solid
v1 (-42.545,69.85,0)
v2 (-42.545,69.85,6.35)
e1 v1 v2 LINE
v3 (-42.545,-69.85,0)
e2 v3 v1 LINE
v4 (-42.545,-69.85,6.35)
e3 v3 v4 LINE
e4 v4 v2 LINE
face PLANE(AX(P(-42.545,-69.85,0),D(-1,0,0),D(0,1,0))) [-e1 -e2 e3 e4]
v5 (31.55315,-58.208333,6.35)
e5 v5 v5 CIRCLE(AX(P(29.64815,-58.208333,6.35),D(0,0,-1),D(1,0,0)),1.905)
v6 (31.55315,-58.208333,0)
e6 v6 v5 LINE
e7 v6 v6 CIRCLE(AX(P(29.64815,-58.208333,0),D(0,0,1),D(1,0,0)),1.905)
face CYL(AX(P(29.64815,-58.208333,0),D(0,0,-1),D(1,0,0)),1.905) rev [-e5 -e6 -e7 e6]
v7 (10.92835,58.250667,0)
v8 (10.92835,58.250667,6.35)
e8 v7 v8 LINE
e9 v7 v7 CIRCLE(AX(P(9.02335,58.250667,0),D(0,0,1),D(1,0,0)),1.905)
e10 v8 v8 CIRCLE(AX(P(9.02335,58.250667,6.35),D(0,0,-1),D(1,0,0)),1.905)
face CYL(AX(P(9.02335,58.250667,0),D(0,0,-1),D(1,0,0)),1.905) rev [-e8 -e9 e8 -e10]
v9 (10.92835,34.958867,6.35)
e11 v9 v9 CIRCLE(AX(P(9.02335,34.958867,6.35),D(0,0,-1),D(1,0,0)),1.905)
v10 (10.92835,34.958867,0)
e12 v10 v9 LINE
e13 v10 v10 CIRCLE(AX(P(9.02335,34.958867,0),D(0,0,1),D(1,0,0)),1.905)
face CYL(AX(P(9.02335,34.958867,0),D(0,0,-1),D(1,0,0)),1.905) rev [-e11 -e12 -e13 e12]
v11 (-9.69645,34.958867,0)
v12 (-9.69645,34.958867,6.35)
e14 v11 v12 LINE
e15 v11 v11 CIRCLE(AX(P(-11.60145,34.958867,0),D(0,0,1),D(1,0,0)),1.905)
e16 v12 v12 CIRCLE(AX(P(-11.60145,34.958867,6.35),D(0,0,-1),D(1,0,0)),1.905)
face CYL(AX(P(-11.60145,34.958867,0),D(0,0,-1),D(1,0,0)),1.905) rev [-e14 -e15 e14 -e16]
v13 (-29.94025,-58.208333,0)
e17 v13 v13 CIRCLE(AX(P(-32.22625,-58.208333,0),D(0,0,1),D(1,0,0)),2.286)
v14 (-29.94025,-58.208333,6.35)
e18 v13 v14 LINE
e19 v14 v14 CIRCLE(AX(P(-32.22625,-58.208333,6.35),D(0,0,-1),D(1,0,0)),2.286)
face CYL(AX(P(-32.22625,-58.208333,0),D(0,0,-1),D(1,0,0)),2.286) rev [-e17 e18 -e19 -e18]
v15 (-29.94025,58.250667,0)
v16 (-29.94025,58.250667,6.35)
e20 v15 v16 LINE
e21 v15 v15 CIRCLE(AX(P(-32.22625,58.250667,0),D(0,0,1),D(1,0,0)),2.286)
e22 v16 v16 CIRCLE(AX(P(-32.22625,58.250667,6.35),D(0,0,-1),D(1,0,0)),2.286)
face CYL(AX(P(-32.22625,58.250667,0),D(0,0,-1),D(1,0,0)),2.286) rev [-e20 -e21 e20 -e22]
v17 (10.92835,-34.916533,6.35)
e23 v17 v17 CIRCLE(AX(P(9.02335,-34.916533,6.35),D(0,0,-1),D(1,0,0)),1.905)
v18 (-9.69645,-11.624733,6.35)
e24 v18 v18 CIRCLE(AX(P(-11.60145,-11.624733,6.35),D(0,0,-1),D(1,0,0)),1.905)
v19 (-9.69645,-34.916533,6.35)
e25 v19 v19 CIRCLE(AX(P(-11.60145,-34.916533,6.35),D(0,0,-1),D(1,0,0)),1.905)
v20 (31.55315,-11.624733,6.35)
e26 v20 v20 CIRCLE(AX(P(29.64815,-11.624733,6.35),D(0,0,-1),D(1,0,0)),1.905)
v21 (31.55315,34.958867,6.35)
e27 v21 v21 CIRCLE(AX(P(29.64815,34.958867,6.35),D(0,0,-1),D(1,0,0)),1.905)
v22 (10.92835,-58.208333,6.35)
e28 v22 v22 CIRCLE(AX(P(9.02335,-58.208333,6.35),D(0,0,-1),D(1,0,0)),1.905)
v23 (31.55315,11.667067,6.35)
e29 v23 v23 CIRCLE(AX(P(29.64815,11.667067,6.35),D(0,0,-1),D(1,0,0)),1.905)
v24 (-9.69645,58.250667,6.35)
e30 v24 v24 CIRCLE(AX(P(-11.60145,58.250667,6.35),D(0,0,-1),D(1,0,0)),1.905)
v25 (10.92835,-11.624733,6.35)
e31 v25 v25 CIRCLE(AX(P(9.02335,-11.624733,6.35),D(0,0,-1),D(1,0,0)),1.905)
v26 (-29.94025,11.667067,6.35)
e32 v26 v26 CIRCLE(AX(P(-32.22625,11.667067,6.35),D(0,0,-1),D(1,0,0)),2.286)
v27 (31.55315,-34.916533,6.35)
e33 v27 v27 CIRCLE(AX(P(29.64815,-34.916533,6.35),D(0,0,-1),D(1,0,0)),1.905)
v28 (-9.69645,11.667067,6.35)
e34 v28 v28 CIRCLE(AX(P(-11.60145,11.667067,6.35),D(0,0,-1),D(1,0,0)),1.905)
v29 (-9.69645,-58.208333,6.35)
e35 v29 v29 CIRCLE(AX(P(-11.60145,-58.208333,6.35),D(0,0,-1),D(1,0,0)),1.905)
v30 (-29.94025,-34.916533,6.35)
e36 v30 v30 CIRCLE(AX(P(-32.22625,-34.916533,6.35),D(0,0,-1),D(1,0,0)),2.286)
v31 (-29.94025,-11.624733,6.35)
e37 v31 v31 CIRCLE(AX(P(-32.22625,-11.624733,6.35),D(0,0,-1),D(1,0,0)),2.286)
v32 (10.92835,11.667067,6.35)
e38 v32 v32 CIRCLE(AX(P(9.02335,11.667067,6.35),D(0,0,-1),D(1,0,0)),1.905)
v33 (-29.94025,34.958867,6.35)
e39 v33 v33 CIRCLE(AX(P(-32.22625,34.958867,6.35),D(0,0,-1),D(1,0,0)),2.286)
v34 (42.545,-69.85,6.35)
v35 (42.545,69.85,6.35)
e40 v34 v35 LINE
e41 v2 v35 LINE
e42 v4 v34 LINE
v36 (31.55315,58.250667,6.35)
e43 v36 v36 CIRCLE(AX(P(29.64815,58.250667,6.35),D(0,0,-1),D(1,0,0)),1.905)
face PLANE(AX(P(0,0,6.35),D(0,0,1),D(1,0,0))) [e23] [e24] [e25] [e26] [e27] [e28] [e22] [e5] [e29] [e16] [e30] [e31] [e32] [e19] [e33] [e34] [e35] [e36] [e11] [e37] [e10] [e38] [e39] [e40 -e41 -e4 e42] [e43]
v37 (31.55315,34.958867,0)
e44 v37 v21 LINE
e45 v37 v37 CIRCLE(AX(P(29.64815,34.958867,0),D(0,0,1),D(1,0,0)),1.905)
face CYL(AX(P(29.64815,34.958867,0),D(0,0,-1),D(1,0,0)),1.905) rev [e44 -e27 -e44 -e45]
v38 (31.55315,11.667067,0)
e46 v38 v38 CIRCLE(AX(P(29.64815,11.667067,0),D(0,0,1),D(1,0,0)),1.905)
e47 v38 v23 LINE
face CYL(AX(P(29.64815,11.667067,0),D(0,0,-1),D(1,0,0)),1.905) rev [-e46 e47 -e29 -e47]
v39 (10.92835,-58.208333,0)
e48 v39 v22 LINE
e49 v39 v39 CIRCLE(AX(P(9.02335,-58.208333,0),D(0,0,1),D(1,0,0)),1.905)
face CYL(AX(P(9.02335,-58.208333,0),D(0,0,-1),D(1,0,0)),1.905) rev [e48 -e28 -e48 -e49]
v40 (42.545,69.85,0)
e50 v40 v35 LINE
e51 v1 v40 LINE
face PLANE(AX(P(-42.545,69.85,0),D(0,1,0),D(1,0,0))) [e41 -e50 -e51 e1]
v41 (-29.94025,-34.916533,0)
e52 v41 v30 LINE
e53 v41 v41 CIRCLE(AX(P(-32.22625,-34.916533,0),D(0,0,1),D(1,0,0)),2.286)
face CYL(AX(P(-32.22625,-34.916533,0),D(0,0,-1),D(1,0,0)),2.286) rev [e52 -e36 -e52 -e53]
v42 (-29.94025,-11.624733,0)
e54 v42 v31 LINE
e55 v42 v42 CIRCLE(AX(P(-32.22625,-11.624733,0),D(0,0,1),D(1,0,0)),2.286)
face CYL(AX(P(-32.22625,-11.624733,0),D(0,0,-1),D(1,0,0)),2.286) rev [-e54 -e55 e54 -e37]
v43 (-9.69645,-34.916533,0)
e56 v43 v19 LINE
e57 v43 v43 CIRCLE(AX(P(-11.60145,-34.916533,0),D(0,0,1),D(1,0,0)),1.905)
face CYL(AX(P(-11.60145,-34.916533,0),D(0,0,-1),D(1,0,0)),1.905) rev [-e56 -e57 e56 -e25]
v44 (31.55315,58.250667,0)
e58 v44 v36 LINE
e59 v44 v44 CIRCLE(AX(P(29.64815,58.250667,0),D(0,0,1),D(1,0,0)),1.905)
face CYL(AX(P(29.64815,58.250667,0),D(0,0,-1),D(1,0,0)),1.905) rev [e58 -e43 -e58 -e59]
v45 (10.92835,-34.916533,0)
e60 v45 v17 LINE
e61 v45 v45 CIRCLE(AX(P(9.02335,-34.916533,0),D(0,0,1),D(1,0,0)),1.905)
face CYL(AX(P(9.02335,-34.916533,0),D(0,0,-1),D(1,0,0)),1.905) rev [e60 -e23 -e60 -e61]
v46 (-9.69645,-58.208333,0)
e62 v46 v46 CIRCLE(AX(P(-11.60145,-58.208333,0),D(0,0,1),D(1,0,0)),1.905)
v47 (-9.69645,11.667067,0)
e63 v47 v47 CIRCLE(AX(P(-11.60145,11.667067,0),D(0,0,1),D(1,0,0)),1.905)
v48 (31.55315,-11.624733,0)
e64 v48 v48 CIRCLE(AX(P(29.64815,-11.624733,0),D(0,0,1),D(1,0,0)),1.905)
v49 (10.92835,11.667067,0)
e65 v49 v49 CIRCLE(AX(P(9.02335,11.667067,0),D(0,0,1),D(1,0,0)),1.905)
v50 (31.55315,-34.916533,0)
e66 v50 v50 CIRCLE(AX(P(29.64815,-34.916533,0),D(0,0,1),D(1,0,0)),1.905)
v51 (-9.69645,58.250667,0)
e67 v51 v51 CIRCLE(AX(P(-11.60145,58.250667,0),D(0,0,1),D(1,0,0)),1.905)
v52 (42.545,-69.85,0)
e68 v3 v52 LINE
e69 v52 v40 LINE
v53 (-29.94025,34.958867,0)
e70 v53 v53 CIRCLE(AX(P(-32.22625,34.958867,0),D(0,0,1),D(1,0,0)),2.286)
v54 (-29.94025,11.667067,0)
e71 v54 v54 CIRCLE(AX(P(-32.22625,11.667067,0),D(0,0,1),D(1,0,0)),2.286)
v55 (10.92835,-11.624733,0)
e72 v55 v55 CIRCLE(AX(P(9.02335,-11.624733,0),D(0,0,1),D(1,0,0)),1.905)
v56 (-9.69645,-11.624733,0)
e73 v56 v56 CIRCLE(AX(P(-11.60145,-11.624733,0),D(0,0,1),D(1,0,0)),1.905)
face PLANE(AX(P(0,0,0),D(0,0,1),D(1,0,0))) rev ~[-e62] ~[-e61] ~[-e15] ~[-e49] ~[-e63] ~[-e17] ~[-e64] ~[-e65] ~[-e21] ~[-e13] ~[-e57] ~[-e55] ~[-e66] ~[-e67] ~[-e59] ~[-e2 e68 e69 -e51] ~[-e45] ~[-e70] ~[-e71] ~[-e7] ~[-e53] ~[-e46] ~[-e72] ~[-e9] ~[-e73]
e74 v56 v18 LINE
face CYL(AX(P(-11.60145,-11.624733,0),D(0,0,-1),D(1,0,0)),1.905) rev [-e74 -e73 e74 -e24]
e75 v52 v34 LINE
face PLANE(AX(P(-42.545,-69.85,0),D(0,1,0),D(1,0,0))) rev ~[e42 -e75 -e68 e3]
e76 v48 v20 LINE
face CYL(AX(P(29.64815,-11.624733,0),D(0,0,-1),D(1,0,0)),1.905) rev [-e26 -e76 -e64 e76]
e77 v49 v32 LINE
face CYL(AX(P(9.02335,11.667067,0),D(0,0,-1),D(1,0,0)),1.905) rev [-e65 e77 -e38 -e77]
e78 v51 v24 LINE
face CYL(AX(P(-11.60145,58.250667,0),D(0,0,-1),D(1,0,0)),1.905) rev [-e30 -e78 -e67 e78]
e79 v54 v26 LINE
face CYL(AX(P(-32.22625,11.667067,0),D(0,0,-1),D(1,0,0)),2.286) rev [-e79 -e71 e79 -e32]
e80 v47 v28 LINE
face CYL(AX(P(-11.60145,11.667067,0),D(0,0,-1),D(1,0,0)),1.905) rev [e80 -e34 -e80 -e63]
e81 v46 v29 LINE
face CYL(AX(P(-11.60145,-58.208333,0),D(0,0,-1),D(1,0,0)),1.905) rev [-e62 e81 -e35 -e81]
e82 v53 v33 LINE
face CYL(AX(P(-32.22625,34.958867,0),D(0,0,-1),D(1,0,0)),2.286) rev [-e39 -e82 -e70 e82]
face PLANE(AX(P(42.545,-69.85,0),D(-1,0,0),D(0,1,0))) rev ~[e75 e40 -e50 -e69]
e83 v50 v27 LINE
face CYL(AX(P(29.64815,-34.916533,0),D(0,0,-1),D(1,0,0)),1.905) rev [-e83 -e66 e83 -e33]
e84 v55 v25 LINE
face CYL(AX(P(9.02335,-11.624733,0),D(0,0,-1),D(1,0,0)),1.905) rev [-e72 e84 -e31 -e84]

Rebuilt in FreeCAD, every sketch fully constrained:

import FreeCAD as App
import Part
import Sketcher
from FreeCAD import Vector
Q = App.Units.Quantity


def add_polygon(sketch, points):
    """Adds a closed chain of lines whose ends are joined by coincident constraints."""
    first, n = sketch.GeometryCount, len(points)
    for a, b in zip(points, points[1:] + points[:1]):
        sketch.addGeometry(Part.LineSegment(App.Vector(*a, 0), App.Vector(*b, 0)), False)
    for i in range(n):
        sketch.addConstraint(Sketcher.Constraint("Coincident", first + i, 2, first + (i + 1) % n, 1))

doc = App.newDocument("Part")
params = doc.addObject("Spreadsheet::Sheet", "Params")
for row, (alias, value) in enumerate([
    ("sketch1_height", "5.5 in"),
    ("sketch1_width", "3.35 in"),
    ("pad1_length", "0.25 in"),
    ("sketch2_diameter", "0.15 in"),
    ("sketch3_diameter", "0.18 in"),
], start=1):
    params.set(f"A{row}", alias)
    params.set(f"B{row}", "=" + value)
    params.setAlias(f"B{row}", alias)

body = doc.addObject("PartDesign::Body", "Body")

# Sketch on XY plane
sketch1 = body.newObject("Sketcher::SketchObject", "Sketch")
sketch1.AttachmentSupport = (doc.getObject("XY_Plane"), [""])
sketch1.MapMode = "FlatFace"
add_polygon(sketch1, [(-43, 70), (-43, -70), (43, -70), (43, 70)])  # lines 0-3
sketch1.addConstraint([
    Sketcher.Constraint("Vertical", 0),
    Sketcher.Constraint("Horizontal", 1),
    Sketcher.Constraint("Vertical", 2),
    Sketcher.Constraint("Horizontal", 3),
    Sketcher.Constraint("Symmetric", 0, 2, 2, 2, -1, 1),
    Sketcher.Constraint("DistanceY", 0, 2, 0, 1, Q("5.5 in")),
    Sketcher.Constraint("DistanceX", 1, 1, 1, 2, Q("3.35 in")),
])
sketch1.setExpression("Constraints[9]", "Params.sketch1_height")
sketch1.setExpression("Constraints[10]", "Params.sketch1_width")
pad1 = body.newObject("PartDesign::Pad", "Pad")
pad1.Profile = sketch1
pad1.setExpression("Length", "Params.pad1_length")

# Sketch on XY plane
sketch2 = body.newObject("Sketcher::SketchObject", "Sketch001")
sketch2.AttachmentSupport = (doc.getObject("XY_Plane"), [""])
sketch2.MapMode = "FlatFace"
sketch2.addGeometry([
    Part.Circle(Vector(-32.2, -58.2, 0), Vector(0, 0, 1), 1.9),  # 0
    Part.Circle(Vector(-32.2, -34.9, 0), Vector(0, 0, 1), 1.9),  # 1
    Part.Circle(Vector(-32.2, -11.6, 0), Vector(0, 0, 1), 1.9),  # 2
    Part.Circle(Vector(-32.2, 11.7, 0), Vector(0, 0, 1), 1.9),  # 3
    Part.Circle(Vector(-32.2, 35, 0), Vector(0, 0, 1), 1.9),  # 4
    Part.Circle(Vector(-32.2, 58.3, 0), Vector(0, 0, 1), 1.9),  # 5
    Part.Circle(Vector(-11.6, -58.2, 0), Vector(0, 0, 1), 1.9),  # 6
    Part.Circle(Vector(-11.6, -34.9, 0), Vector(0, 0, 1), 1.9),  # 7
    Part.Circle(Vector(-11.6, -11.6, 0), Vector(0, 0, 1), 1.9),  # 8
    Part.Circle(Vector(-11.6, 11.7, 0), Vector(0, 0, 1), 1.9),  # 9
    Part.Circle(Vector(-11.6, 35, 0), Vector(0, 0, 1), 1.9),  # 10
    Part.Circle(Vector(-11.6, 58.3, 0), Vector(0, 0, 1), 1.9),  # 11
    Part.Circle(Vector(9, -58.2, 0), Vector(0, 0, 1), 1.9),  # 12
    Part.Circle(Vector(9, -34.9, 0), Vector(0, 0, 1), 1.9),  # 13
    Part.Circle(Vector(9, -11.6, 0), Vector(0, 0, 1), 1.9),  # 14
    Part.Circle(Vector(9, 11.7, 0), Vector(0, 0, 1), 1.9),  # 15
    Part.Circle(Vector(9, 35, 0), Vector(0, 0, 1), 1.9),  # 16
    Part.Circle(Vector(9, 58.3, 0), Vector(0, 0, 1), 1.9),  # 17
    Part.Circle(Vector(29.6, -58.2, 0), Vector(0, 0, 1), 1.9),  # 18
    Part.Circle(Vector(29.6, -34.9, 0), Vector(0, 0, 1), 1.9),  # 19
    Part.Circle(Vector(29.6, -11.6, 0), Vector(0, 0, 1), 1.9),  # 20
    Part.Circle(Vector(29.6, 11.7, 0), Vector(0, 0, 1), 1.9),  # 21
    Part.Circle(Vector(29.6, 35, 0), Vector(0, 0, 1), 1.9),  # 22
    Part.Circle(Vector(29.6, 58.3, 0), Vector(0, 0, 1), 1.9),  # 23
], False)
sketch2.addConstraint([
    Sketcher.Constraint("Equal", 0, 1),
    Sketcher.Constraint("Equal", 1, 2),
    Sketcher.Constraint("Equal", 2, 3),
    Sketcher.Constraint("Equal", 3, 4),
    Sketcher.Constraint("Equal", 4, 5),
    Sketcher.Constraint("Equal", 5, 6),
    Sketcher.Constraint("Equal", 6, 7),
    Sketcher.Constraint("Equal", 7, 8),
    Sketcher.Constraint("Equal", 8, 9),
    Sketcher.Constraint("Equal", 9, 10),
    Sketcher.Constraint("Equal", 10, 11),
    Sketcher.Constraint("Equal", 11, 12),
    Sketcher.Constraint("Equal", 12, 13),
    Sketcher.Constraint("Equal", 13, 14),
    Sketcher.Constraint("Equal", 14, 15),
    Sketcher.Constraint("Equal", 15, 16),
    Sketcher.Constraint("Equal", 16, 17),
    Sketcher.Constraint("Equal", 17, 18),
    Sketcher.Constraint("Equal", 18, 19),
    Sketcher.Constraint("Equal", 19, 20),
    Sketcher.Constraint("Equal", 20, 21),
    Sketcher.Constraint("Equal", 21, 22),
    Sketcher.Constraint("Equal", 22, 23),
    Sketcher.Constraint("Horizontal", 0, 3, 6, 3),
    Sketcher.Constraint("Horizontal", 1, 3, 7, 3),
    Sketcher.Constraint("Horizontal", 2, 3, 8, 3),
    Sketcher.Constraint("Horizontal", 3, 3, 9, 3),
    Sketcher.Constraint("Horizontal", 4, 3, 10, 3),
    Sketcher.Constraint("Horizontal", 5, 3, 11, 3),
    Sketcher.Constraint("Horizontal", 6, 3, 12, 3),
    Sketcher.Constraint("Horizontal", 7, 3, 13, 3),
    Sketcher.Constraint("Horizontal", 8, 3, 14, 3),
    Sketcher.Constraint("Horizontal", 9, 3, 15, 3),
    Sketcher.Constraint("Horizontal", 10, 3, 16, 3),
    Sketcher.Constraint("Horizontal", 11, 3, 17, 3),
    Sketcher.Constraint("Horizontal", 12, 3, 18, 3),
    Sketcher.Constraint("Horizontal", 13, 3, 19, 3),
    Sketcher.Constraint("Horizontal", 14, 3, 20, 3),
    Sketcher.Constraint("Horizontal", 15, 3, 21, 3),
    Sketcher.Constraint("Horizontal", 16, 3, 22, 3),
    Sketcher.Constraint("Horizontal", 17, 3, 23, 3),
    Sketcher.Constraint("Vertical", 0, 3, 1, 3),
    Sketcher.Constraint("Vertical", 1, 3, 2, 3),
    Sketcher.Constraint("Vertical", 2, 3, 3, 3),
    Sketcher.Constraint("Vertical", 3, 3, 4, 3),
    Sketcher.Constraint("Vertical", 4, 3, 5, 3),
    Sketcher.Constraint("Vertical", 6, 3, 7, 3),
    Sketcher.Constraint("Vertical", 7, 3, 8, 3),
    Sketcher.Constraint("Vertical", 8, 3, 9, 3),
    Sketcher.Constraint("Vertical", 9, 3, 10, 3),
    Sketcher.Constraint("Vertical", 10, 3, 11, 3),
    Sketcher.Constraint("Vertical", 12, 3, 13, 3),
    Sketcher.Constraint("Vertical", 13, 3, 14, 3),
    Sketcher.Constraint("Vertical", 14, 3, 15, 3),
    Sketcher.Constraint("Vertical", 15, 3, 16, 3),
    Sketcher.Constraint("Vertical", 16, 3, 17, 3),
    Sketcher.Constraint("Vertical", 18, 3, 19, 3),
    Sketcher.Constraint("Vertical", 19, 3, 20, 3),
    Sketcher.Constraint("Vertical", 20, 3, 21, 3),
    Sketcher.Constraint("Vertical", 21, 3, 22, 3),
    Sketcher.Constraint("Vertical", 22, 3, 23, 3),
    Sketcher.Constraint("Diameter", 0, Q("0.15 in")),
    Sketcher.Constraint("DistanceY", 0, 3, 1, 3, Q("0.917 in")),
    Sketcher.Constraint("DistanceY", 1, 3, 2, 3, Q("0.917 in")),
    Sketcher.Constraint("DistanceY", 2, 3, 3, 3, Q("0.917 in")),
    Sketcher.Constraint("DistanceY", 3, 3, 4, 3, Q("0.917 in")),
    Sketcher.Constraint("DistanceY", 4, 3, 5, 3, Q("0.917 in")),
    Sketcher.Constraint("DistanceX", 0, 3, 6, 3, Q("0.812 in")),
    Sketcher.Constraint("DistanceX", 6, 3, 12, 3, Q("0.812 in")),
    Sketcher.Constraint("DistanceX", 12, 3, 18, 3, Q("0.812 in")),
    Sketcher.Constraint("DistanceX", 0, 3, -1, 1, Q("32.22625 mm")),
    Sketcher.Constraint("DistanceY", 0, 3, -1, 1, Q("58.208333 mm")),
])
sketch2.setExpression("Constraints[61]", "Params.sketch2_diameter")
pocket1 = body.newObject("PartDesign::Pocket", "Pocket")
pocket1.Profile = sketch2
pocket1.Type = "ThroughAll"
pocket1.Reversed = True

# Sketch on XY plane
sketch3 = body.newObject("Sketcher::SketchObject", "Sketch002")
sketch3.AttachmentSupport = (doc.getObject("XY_Plane"), [""])
sketch3.MapMode = "FlatFace"
sketch3.addGeometry([
    Part.Circle(Vector(-32.2, -58.2, 0), Vector(0, 0, 1), 2.3),  # 0
    Part.Circle(Vector(-32.2, -34.9, 0), Vector(0, 0, 1), 2.3),  # 1
    Part.Circle(Vector(-32.2, -11.6, 0), Vector(0, 0, 1), 2.3),  # 2
    Part.Circle(Vector(-32.2, 11.7, 0), Vector(0, 0, 1), 2.3),  # 3
    Part.Circle(Vector(-32.2, 35, 0), Vector(0, 0, 1), 2.3),  # 4
    Part.Circle(Vector(-32.2, 58.3, 0), Vector(0, 0, 1), 2.3),  # 5
], False)
sketch3.addConstraint([
    Sketcher.Constraint("Equal", 0, 1),
    Sketcher.Constraint("Equal", 1, 2),
    Sketcher.Constraint("Equal", 2, 3),
    Sketcher.Constraint("Equal", 3, 4),
    Sketcher.Constraint("Equal", 4, 5),
    Sketcher.Constraint("Vertical", 0, 3, 1, 3),
    Sketcher.Constraint("Vertical", 1, 3, 2, 3),
    Sketcher.Constraint("Vertical", 2, 3, 3, 3),
    Sketcher.Constraint("Vertical", 3, 3, 4, 3),
    Sketcher.Constraint("Vertical", 4, 3, 5, 3),
    Sketcher.Constraint("Diameter", 0, Q("0.18 in")),
    Sketcher.Constraint("DistanceY", 0, 3, 1, 3, Q("0.917 in")),
    Sketcher.Constraint("DistanceY", 1, 3, 2, 3, Q("0.917 in")),
    Sketcher.Constraint("DistanceY", 2, 3, 3, 3, Q("0.917 in")),
    Sketcher.Constraint("DistanceY", 3, 3, 4, 3, Q("0.917 in")),
    Sketcher.Constraint("DistanceY", 4, 3, 5, 3, Q("0.917 in")),
    Sketcher.Constraint("DistanceX", 0, 3, -1, 1, Q("32.22625 mm")),
    Sketcher.Constraint("DistanceY", 0, 3, -1, 1, Q("58.208333 mm")),
])
sketch3.setExpression("Constraints[10]", "Params.sketch3_diameter")
pocket2 = body.newObject("PartDesign::Pocket", "Pocket001")
pocket2.Profile = sketch3
pocket2.Type = "ThroughAll"
pocket2.Reversed = True

doc.recompute()
